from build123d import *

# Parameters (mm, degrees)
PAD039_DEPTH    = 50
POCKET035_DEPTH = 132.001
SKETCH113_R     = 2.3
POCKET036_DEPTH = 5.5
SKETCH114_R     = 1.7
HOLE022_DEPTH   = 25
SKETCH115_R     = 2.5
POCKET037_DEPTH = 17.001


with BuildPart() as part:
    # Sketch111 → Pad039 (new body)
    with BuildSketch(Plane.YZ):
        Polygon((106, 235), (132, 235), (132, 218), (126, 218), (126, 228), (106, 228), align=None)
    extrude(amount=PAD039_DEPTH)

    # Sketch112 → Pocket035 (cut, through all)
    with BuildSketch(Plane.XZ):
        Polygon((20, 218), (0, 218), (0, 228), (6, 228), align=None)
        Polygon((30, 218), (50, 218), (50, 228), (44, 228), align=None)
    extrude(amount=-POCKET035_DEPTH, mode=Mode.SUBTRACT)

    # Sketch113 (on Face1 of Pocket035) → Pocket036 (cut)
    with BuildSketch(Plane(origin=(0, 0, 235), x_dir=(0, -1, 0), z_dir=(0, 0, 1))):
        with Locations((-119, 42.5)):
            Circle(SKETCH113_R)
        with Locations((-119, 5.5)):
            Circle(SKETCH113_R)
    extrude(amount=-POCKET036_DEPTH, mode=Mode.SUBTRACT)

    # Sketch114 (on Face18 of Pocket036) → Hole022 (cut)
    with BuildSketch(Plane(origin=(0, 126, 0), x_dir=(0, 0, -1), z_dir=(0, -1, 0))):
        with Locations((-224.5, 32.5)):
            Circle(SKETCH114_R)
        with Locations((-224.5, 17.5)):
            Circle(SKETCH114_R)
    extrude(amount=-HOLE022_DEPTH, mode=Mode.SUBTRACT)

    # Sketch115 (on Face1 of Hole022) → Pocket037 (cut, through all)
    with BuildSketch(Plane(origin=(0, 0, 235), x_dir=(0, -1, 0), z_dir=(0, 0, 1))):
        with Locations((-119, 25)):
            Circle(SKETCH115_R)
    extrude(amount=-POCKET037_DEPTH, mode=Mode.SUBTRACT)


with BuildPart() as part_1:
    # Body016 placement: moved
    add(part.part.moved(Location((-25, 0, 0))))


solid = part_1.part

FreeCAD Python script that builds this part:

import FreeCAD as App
import Part
import Sketcher

V = App.Vector
Q = App.Units.Quantity

doc = App.newDocument("Part")
body = doc.addObject("PartDesign::Body", "Body")

# Sketch on YZ plane
sketch1 = body.newObject("Sketcher::SketchObject", "Sketch")
sketch1.AttachmentSupport = (doc.getObject("YZ_Plane"), [""])
sketch1.MapMode = "FlatFace"
sketch1.addGeometry(Part.LineSegment(V(132, 235, 0), V(106, 235, 0)), False)
sketch1.addGeometry(Part.LineSegment(V(106, 235, 0), V(106, 228, 0)), False)
sketch1.addGeometry(Part.LineSegment(V(106, 228, 0), V(126, 228, 0)), False)
sketch1.addGeometry(Part.LineSegment(V(126, 228, 0), V(126, 218, 0)), False)
sketch1.addGeometry(Part.LineSegment(V(126, 218, 0), V(132, 218, 0)), False)
sketch1.addGeometry(Part.LineSegment(V(132, 218, 0), V(132, 235, 0)), False)
sketch1.addConstraint(Sketcher.Constraint("Coincident", 0, 2, 1, 1))
sketch1.addConstraint(Sketcher.Constraint("Coincident", 1, 2, 2, 1))
sketch1.addConstraint(Sketcher.Constraint("Coincident", 2, 2, 3, 1))
sketch1.addConstraint(Sketcher.Constraint("Coincident", 3, 2, 4, 1))
sketch1.addConstraint(Sketcher.Constraint("Coincident", 4, 2, 5, 1))
sketch1.addConstraint(Sketcher.Constraint("Coincident", 5, 2, 0, 1))
sketch1.addConstraint(Sketcher.Constraint("Horizontal", 0))
sketch1.addConstraint(Sketcher.Constraint("Vertical", 1))
sketch1.addConstraint(Sketcher.Constraint("Horizontal", 2))
sketch1.addConstraint(Sketcher.Constraint("Vertical", 3))
sketch1.addConstraint(Sketcher.Constraint("Horizontal", 4))
sketch1.addConstraint(Sketcher.Constraint("Vertical", 5))
sketch1.addConstraint(Sketcher.Constraint("DistanceX", 0, 2, 0, 1, Q("26 mm")))
sketch1.addConstraint(Sketcher.Constraint("DistanceX", 2, 1, 2, 2, Q("20 mm")))
sketch1.addConstraint(Sketcher.Constraint("DistanceY", 1, 2, 1, 1, Q("7 mm")))
sketch1.addConstraint(Sketcher.Constraint("DistanceY", 3, 2, 3, 1, Q("10 mm")))
sketch1.addConstraint(Sketcher.Constraint("DistanceX", -1, 1, 0, 2, Q("106 mm")))
sketch1.addConstraint(Sketcher.Constraint("DistanceY", -1, 1, 0, 2, Q("235 mm")))
pad1 = body.newObject("PartDesign::Pad", "Pad")
pad1.Profile = sketch1
pad1.Length = 50

# Sketch on XZ plane
sketch2 = body.newObject("Sketcher::SketchObject", "Sketch001")
sketch2.AttachmentSupport = (doc.getObject("XZ_Plane"), [""])
sketch2.MapMode = "FlatFace"
sketch2.addGeometry(Part.LineSegment(V(0, 218, 0), V(20, 218, 0)), False)
sketch2.addGeometry(Part.LineSegment(V(20, 218, 0), V(6, 228, 0)), False)
sketch2.addGeometry(Part.LineSegment(V(6, 228, 0), V(0, 228, 0)), False)
sketch2.addGeometry(Part.LineSegment(V(0, 228, 0), V(0, 218, 0)), False)
sketch2.addGeometry(Part.LineSegment(V(30, 218, 0), V(50, 218, 0)), False)
sketch2.addGeometry(Part.LineSegment(V(50, 218, 0), V(50, 228, 0)), False)
sketch2.addGeometry(Part.LineSegment(V(50, 228, 0), V(44, 228, 0)), False)
sketch2.addGeometry(Part.LineSegment(V(44, 228, 0), V(30, 218, 0)), False)
sketch2.addConstraint(Sketcher.Constraint("Coincident", 0, 2, 1, 1))
sketch2.addConstraint(Sketcher.Constraint("Coincident", 1, 2, 2, 1))
sketch2.addConstraint(Sketcher.Constraint("Coincident", 2, 2, 3, 1))
sketch2.addConstraint(Sketcher.Constraint("Coincident", 3, 2, 0, 1))
sketch2.addConstraint(Sketcher.Constraint("Coincident", 4, 2, 5, 1))
sketch2.addConstraint(Sketcher.Constraint("Coincident", 5, 2, 6, 1))
sketch2.addConstraint(Sketcher.Constraint("Coincident", 6, 2, 7, 1))
sketch2.addConstraint(Sketcher.Constraint("Coincident", 7, 2, 4, 1))
sketch2.addConstraint(Sketcher.Constraint("Horizontal", 0))
sketch2.addConstraint(Sketcher.Constraint("Horizontal", 2))
sketch2.addConstraint(Sketcher.Constraint("Vertical", 3))
sketch2.addConstraint(Sketcher.Constraint("Horizontal", 4))
sketch2.addConstraint(Sketcher.Constraint("Vertical", 5))
sketch2.addConstraint(Sketcher.Constraint("Horizontal", 6))
sketch2.addConstraint(Sketcher.Constraint("PointOnObject", 2, 2, -2))
sketch2.addConstraint(Sketcher.Constraint("Horizontal", 3, 2, 4, 2))
sketch2.addConstraint(Sketcher.Constraint("Horizontal", 2, 2, 5, 2))
sketch2.addConstraint(Sketcher.Constraint("Equal", 0, 4))
sketch2.addConstraint(Sketcher.Constraint("Equal", 2, 6))
sketch2.addConstraint(Sketcher.Constraint("DistanceX", 0, 1, 0, 2, Q("20 mm")))
sketch2.addConstraint(Sketcher.Constraint("DistanceX", 2, 2, 2, 1, Q("6 mm")))
sketch2.addConstraint(Sketcher.Constraint("DistanceY", 3, 2, 3, 1, Q("10 mm")))
sketch2.addConstraint(Sketcher.Constraint("DistanceY", -1, 1, 0, 2, Q("218 mm")))
sketch2.addConstraint(Sketcher.Constraint("DistanceX", -1, 1, 4, 2, Q("50 mm")))
pocket1 = body.newObject("PartDesign::Pocket", "Pocket")
pocket1.Profile = sketch2
pocket1.Type = "ThroughAll"

# Sketch on XY plane
sketch3 = body.newObject("Sketcher::SketchObject", "Sketch002")
sketch3.AttachmentSupport = (doc.getObject("XY_Plane"), [""])
sketch3.MapMode = "FlatFace"
sketch3.AttachmentOffset = App.Placement(V(0, 0, 235), App.Rotation())
sketch3.addGeometry(Part.Circle(V(42.5, 119, 0), V(0, 0, 1), 2.3), False)
sketch3.addGeometry(Part.Circle(V(5.5, 119, 0), V(0, 0, 1), 2.3), False)
sketch3.addConstraint(Sketcher.Constraint("Equal", 0, 1))
sketch3.addConstraint(Sketcher.Constraint("Horizontal", 0, 3, 1, 3))
sketch3.addConstraint(Sketcher.Constraint("Diameter", 0, Q("4.6 mm")))
sketch3.addConstraint(Sketcher.Constraint("DistanceY", -1, 1, 0, 3, Q("119 mm")))
sketch3.addConstraint(Sketcher.Constraint("DistanceX", 1, 3, 0, 3, Q("37 mm")))
sketch3.addConstraint(Sketcher.Constraint("DistanceX", -1, 1, 0, 3, Q("42.5 mm")))
pocket2 = body.newObject("PartDesign::Pocket", "Pocket001")
pocket2.Profile = sketch3
pocket2.Length = 5.5

# Sketch on XZ plane
sketch4 = body.newObject("Sketcher::SketchObject", "Sketch003")
sketch4.AttachmentSupport = (doc.getObject("XZ_Plane"), [""])
sketch4.MapMode = "FlatFace"
sketch4.AttachmentOffset = App.Placement(V(0, 0, -126), App.Rotation())
sketch4.addGeometry(Part.Circle(V(32.5, 224.5, 0), V(0, 0, 1), 1.7), False)
sketch4.addGeometry(Part.Circle(V(17.5, 224.5, 0), V(0, 0, 1), 1.7), False)
sketch4.addConstraint(Sketcher.Constraint("Equal", 0, 1))
sketch4.addConstraint(Sketcher.Constraint("Horizontal", 0, 3, 1, 3))
sketch4.addConstraint(Sketcher.Constraint("Diameter", 0, Q("3.4 mm")))
sketch4.addConstraint(Sketcher.Constraint("DistanceX", 1, 3, 0, 3, Q("15 mm")))
sketch4.addConstraint(Sketcher.Constraint("DistanceX", -1, 1, 0, 3, Q("32.5 mm")))
sketch4.addConstraint(Sketcher.Constraint("DistanceY", -1, 1, 0, 3, Q("224.5 mm")))
pocket3 = body.newObject("PartDesign::Pocket", "Pocket002")
pocket3.Profile = sketch4
pocket3.Length = 25

# Sketch on XY plane
sketch5 = body.newObject("Sketcher::SketchObject", "Sketch004")
sketch5.AttachmentSupport = (doc.getObject("XY_Plane"), [""])
sketch5.MapMode = "FlatFace"
sketch5.AttachmentOffset = App.Placement(V(0, 0, 235), App.Rotation())
sketch5.addGeometry(Part.Circle(V(25, 119, 0), V(0, 0, 1), 2.5), False)
sketch5.addConstraint(Sketcher.Constraint("Diameter", 0, Q("5 mm")))
sketch5.addConstraint(Sketcher.Constraint("DistanceX", -1, 1, 0, 3, Q("25 mm")))
sketch5.addConstraint(Sketcher.Constraint("DistanceY", -1, 1, 0, 3, Q("119 mm")))
pocket4 = body.newObject("PartDesign::Pocket", "Pocket003")
pocket4.Profile = sketch5
pocket4.Type = "ThroughAll"
body2 = doc.addObject("PartDesign::Body", "Body001")
doc.recompute()

body.Placement = App.Placement(V(-25, 0, 0), App.Rotation(V(0, 0, 1), 0))
boolean = body2.newObject("PartDesign::Boolean", "Boolean")
boolean.Type = "Fuse"
boolean.addObjects([body])

doc.recompute()
